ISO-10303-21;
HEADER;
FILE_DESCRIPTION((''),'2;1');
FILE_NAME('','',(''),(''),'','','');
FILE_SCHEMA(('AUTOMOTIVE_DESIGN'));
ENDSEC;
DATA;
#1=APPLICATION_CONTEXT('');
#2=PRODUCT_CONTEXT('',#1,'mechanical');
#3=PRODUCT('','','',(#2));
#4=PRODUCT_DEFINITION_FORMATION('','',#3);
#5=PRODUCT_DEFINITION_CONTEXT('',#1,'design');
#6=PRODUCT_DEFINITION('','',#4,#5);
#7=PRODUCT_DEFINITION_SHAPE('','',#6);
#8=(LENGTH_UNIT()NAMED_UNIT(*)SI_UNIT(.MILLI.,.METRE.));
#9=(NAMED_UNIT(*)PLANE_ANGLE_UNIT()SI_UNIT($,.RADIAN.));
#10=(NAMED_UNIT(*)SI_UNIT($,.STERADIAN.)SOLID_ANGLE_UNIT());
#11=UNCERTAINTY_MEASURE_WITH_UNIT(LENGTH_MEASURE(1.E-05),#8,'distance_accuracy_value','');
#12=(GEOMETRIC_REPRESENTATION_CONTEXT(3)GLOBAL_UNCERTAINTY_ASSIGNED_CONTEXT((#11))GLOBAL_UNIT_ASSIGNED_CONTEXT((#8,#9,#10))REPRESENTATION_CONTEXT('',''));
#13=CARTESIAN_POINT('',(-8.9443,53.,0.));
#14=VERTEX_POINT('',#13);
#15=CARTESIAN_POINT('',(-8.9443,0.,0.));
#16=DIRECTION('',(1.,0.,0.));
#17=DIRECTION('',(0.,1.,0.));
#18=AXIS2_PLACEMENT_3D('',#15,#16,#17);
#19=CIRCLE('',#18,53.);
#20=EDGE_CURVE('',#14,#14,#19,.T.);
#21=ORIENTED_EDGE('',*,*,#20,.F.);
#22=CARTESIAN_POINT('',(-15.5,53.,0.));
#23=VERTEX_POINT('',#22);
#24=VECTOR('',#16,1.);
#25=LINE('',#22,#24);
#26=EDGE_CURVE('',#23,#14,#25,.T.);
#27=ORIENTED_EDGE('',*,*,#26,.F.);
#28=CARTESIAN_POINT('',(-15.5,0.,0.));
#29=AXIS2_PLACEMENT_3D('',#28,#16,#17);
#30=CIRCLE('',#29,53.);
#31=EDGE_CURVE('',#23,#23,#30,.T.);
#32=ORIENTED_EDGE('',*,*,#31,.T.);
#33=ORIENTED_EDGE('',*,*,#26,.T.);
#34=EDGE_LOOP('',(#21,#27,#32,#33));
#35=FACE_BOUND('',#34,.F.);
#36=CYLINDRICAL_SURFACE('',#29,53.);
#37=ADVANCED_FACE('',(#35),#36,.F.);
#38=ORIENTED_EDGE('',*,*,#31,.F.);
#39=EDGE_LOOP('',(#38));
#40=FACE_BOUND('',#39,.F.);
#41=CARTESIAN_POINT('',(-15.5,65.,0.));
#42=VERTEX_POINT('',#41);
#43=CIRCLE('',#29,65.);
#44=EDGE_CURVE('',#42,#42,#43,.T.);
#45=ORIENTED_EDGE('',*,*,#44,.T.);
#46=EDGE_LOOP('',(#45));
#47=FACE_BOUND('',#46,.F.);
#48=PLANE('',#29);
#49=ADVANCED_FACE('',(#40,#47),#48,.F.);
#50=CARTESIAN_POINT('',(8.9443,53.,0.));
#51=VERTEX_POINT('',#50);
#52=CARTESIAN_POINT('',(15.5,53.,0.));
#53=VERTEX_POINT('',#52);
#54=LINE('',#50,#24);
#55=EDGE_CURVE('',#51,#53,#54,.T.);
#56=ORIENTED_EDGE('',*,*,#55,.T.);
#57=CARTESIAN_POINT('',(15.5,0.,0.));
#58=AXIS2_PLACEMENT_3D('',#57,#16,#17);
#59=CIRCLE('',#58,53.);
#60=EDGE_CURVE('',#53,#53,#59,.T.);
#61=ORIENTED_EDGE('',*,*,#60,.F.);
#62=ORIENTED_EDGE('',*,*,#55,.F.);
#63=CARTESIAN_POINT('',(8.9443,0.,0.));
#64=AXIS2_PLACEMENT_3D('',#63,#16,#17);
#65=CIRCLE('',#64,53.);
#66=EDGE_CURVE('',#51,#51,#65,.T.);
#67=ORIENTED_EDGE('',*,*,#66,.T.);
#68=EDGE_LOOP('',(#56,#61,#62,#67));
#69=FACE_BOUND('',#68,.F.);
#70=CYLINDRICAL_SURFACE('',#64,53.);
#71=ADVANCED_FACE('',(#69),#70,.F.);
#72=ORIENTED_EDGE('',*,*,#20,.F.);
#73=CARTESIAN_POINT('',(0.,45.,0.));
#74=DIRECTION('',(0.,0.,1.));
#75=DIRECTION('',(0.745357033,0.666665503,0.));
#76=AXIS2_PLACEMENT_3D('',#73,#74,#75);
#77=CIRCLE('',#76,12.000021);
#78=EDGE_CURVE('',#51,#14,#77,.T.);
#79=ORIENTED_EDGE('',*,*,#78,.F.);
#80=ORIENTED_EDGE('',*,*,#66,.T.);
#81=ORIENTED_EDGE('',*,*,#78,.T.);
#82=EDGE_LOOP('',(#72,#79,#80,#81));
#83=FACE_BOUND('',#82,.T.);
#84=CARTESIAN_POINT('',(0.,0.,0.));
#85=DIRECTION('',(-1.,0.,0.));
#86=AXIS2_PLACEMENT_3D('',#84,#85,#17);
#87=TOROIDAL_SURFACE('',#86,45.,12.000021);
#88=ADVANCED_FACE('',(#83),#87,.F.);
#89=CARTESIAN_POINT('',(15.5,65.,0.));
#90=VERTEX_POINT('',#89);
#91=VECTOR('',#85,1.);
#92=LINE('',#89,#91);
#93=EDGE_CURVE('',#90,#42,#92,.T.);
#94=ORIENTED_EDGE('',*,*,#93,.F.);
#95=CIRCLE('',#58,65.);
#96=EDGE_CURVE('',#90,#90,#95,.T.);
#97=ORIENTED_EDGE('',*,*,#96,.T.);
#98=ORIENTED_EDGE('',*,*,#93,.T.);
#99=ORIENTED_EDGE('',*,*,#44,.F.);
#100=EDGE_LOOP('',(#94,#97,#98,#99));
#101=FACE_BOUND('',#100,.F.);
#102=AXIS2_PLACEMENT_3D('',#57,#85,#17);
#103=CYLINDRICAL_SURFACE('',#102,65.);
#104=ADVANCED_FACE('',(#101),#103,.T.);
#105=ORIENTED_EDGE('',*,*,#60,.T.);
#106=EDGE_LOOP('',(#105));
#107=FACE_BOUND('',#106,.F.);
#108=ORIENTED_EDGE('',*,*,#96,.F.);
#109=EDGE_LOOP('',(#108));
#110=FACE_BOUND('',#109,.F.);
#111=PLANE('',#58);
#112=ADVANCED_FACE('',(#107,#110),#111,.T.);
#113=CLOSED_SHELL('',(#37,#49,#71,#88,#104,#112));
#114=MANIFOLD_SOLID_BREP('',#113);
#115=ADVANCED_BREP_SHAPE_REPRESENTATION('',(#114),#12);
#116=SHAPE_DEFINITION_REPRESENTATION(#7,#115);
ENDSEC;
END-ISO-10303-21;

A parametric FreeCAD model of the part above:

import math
import FreeCAD as App
import Part
import Sketcher
Q = App.Units.Quantity

doc = App.newDocument("Part")
body = doc.addObject("PartDesign::Body", "Body")

# Sketch on XY plane
sketch1 = body.newObject("Sketcher::SketchObject", "Sketch")
sketch1.AttachmentSupport = (doc.getObject("XY_Plane"), [""])
sketch1.MapMode = "FlatFace"
sketch1.addGeometry([
    Part.LineSegment(App.Vector(9, 53, 0), App.Vector(16, 53, 0)),  # 0
    Part.LineSegment(App.Vector(16, 53, 0), App.Vector(16, 65, 0)),  # 1
    Part.LineSegment(App.Vector(16, 65, 0), App.Vector(-16, 65, 0)),  # 2
    Part.LineSegment(App.Vector(-16, 65, 0), App.Vector(-16, 53, 0)),  # 3
    Part.LineSegment(App.Vector(-16, 53, 0), App.Vector(-9, 53, 0)),  # 4
    Part.ArcOfCircle(Part.Circle(App.Vector(0, 45, 0), App.Vector(0, 0, 1), 12), math.radians(42), math.radians(138)),  # 5
], False)
sketch1.addConstraint([
    Sketcher.Constraint("Coincident", 0, 2, 1, 1),
    Sketcher.Constraint("Coincident", 1, 2, 2, 1),
    Sketcher.Constraint("Coincident", 2, 2, 3, 1),
    Sketcher.Constraint("Coincident", 3, 2, 4, 1),
    Sketcher.Constraint("Coincident", 4, 2, 5, 2),
    Sketcher.Constraint("Coincident", 5, 1, 0, 1),
    Sketcher.Constraint("Horizontal", 0),
    Sketcher.Constraint("Vertical", 1),
    Sketcher.Constraint("Horizontal", 2),
    Sketcher.Constraint("Vertical", 3),
    Sketcher.Constraint("Horizontal", 4),
    Sketcher.Constraint("Symmetric", 0, 2, 3, 2, -2),
    Sketcher.Constraint("PointOnObject", 5, 3, -2),
    Sketcher.Constraint("Radius", 5, Q("12 mm")),
    Sketcher.Constraint("DistanceX", 2, 2, 2, 1, Q("31 mm")),
    Sketcher.Constraint("DistanceY", 1, 1, 1, 2, Q("12 mm")),
    Sketcher.Constraint("DistanceY", -1, 1, 0, 2, Q("53 mm")),
    Sketcher.Constraint("DistanceY", 5, 3, 0, 2, Q("8 mm")),
])
revolution = body.newObject("PartDesign::Revolution", "Revolution")
revolution.Profile = sketch1
revolution.ReferenceAxis = (sketch1, ["H_Axis"])
revolution.Angle = 360

doc.recompute()
